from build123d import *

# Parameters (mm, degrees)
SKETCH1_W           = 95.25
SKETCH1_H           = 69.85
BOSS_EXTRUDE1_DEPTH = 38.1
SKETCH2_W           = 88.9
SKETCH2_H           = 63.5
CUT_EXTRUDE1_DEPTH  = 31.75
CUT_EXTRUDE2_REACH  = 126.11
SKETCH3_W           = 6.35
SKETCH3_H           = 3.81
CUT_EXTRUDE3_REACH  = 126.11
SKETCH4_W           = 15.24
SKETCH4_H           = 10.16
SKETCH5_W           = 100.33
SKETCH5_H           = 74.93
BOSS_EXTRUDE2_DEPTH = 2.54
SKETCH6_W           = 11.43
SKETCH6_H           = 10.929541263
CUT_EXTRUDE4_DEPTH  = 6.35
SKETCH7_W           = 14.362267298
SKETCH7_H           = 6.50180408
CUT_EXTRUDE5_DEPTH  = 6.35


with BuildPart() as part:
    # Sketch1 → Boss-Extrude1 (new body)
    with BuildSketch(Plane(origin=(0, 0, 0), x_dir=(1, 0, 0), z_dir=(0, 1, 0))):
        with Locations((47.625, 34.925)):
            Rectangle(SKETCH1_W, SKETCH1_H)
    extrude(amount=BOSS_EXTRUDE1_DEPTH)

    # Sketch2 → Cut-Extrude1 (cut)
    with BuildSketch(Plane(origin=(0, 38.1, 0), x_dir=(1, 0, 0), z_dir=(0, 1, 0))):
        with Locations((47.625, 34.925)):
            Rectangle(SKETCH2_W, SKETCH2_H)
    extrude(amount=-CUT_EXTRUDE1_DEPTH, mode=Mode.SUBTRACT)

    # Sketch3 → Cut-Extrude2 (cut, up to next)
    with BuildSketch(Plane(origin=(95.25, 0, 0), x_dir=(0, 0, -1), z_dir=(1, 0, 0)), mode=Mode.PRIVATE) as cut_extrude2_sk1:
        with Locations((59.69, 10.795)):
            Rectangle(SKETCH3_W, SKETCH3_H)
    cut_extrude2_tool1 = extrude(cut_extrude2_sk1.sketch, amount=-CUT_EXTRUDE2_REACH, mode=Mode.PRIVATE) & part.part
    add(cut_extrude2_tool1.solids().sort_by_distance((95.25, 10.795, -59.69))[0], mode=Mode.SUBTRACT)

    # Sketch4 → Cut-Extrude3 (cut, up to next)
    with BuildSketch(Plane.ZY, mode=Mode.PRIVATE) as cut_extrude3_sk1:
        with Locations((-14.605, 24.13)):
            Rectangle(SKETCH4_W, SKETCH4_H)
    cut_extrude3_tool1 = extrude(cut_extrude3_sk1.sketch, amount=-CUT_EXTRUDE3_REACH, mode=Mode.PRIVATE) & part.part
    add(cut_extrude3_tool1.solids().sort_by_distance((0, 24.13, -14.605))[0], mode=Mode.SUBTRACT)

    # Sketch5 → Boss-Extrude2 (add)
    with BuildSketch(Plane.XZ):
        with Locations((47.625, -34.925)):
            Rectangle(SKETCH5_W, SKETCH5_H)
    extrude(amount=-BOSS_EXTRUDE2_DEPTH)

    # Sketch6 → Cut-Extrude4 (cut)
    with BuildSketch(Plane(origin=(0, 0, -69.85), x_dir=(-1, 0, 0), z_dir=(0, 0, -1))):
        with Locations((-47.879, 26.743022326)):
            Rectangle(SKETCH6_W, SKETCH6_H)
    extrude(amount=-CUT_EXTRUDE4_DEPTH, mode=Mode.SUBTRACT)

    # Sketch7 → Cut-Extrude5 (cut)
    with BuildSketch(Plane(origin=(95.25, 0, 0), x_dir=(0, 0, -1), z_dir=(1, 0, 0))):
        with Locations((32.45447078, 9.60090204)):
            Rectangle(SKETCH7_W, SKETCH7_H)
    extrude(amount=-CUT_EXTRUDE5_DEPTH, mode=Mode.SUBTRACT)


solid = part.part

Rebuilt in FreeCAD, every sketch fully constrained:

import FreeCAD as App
import Part
import Sketcher
Q = App.Units.Quantity

doc = App.newDocument("Part")
body = doc.addObject("PartDesign::Body", "Body")

# Sketch on XZ plane
sketch1 = body.newObject("Sketcher::SketchObject", "Sketch")
sketch1.AttachmentSupport = (doc.getObject("XZ_Plane"), [""])
sketch1.MapMode = "FlatFace"
sketch1.addGeometry(Part.LineSegment(App.Vector(0, -70, 0), App.Vector(0, 0, 0)), False)
sketch1.addGeometry(Part.LineSegment(App.Vector(0, 0, 0), App.Vector(95, 0, 0)), False)
sketch1.addGeometry(Part.LineSegment(App.Vector(95, 0, 0), App.Vector(95, -70, 0)), False)
sketch1.addGeometry(Part.LineSegment(App.Vector(95, -70, 0), App.Vector(0, -70, 0)), False)
sketch1.addConstraint(Sketcher.Constraint("Coincident", 0, 2, 1, 1))
sketch1.addConstraint(Sketcher.Constraint("Coincident", 1, 2, 2, 1))
sketch1.addConstraint(Sketcher.Constraint("Coincident", 2, 2, 3, 1))
sketch1.addConstraint(Sketcher.Constraint("Coincident", 3, 2, 0, 1))
sketch1.addConstraint(Sketcher.Constraint("Vertical", 0))
sketch1.addConstraint(Sketcher.Constraint("Horizontal", 1))
sketch1.addConstraint(Sketcher.Constraint("Vertical", 2))
sketch1.addConstraint(Sketcher.Constraint("Horizontal", 3))
sketch1.addConstraint(Sketcher.Constraint("Coincident", 0, 2, -1, 1))
sketch1.addConstraint(Sketcher.Constraint("DistanceX", 1, 1, 1, 2, Q("3.75 in")))
sketch1.addConstraint(Sketcher.Constraint("DistanceY", 0, 1, 0, 2, Q("2.75 in")))
pad1 = body.newObject("PartDesign::Pad", "Pad")
pad1.Profile = sketch1
pad1.Length = Q("1.5 in")
pad1.Reversed = True

# Sketch on XZ plane
sketch2 = body.newObject("Sketcher::SketchObject", "Sketch001")
sketch2.AttachmentSupport = (doc.getObject("XZ_Plane"), [""])
sketch2.MapMode = "FlatFace"
sketch2.AttachmentOffset = App.Placement(App.Vector(0, 0, -1.5 * 25.4), App.Rotation())
sketch2.addGeometry(Part.LineSegment(App.Vector(3, -67, 0), App.Vector(3, -3, 0)), False)
sketch2.addGeometry(Part.LineSegment(App.Vector(3, -3, 0), App.Vector(92, -3, 0)), False)
sketch2.addGeometry(Part.LineSegment(App.Vector(92, -3, 0), App.Vector(92, -67, 0)), False)
sketch2.addGeometry(Part.LineSegment(App.Vector(92, -67, 0), App.Vector(3, -67, 0)), False)
sketch2.addConstraint(Sketcher.Constraint("Coincident", 0, 2, 1, 1))
sketch2.addConstraint(Sketcher.Constraint("Coincident", 1, 2, 2, 1))
sketch2.addConstraint(Sketcher.Constraint("Coincident", 2, 2, 3, 1))
sketch2.addConstraint(Sketcher.Constraint("Coincident", 3, 2, 0, 1))
sketch2.addConstraint(Sketcher.Constraint("Vertical", 0))
sketch2.addConstraint(Sketcher.Constraint("Horizontal", 1))
sketch2.addConstraint(Sketcher.Constraint("Vertical", 2))
sketch2.addConstraint(Sketcher.Constraint("Horizontal", 3))
sketch2.addConstraint(Sketcher.Constraint("DistanceX", 1, 1, 1, 2, Q("3.5 in")))
sketch2.addConstraint(Sketcher.Constraint("DistanceY", 0, 1, 0, 2, Q("2.5 in")))
sketch2.addConstraint(Sketcher.Constraint("DistanceX", -1, 1, 0, 2, Q("0.125 in")))
sketch2.addConstraint(Sketcher.Constraint("DistanceY", 0, 2, -1, 1, Q("0.125 in")))
pocket1 = body.newObject("PartDesign::Pocket", "Pocket")
pocket1.Profile = sketch2
pocket1.Length = Q("1.25 in")
pocket1.Reversed = True

# Sketch on YZ plane
sketch3 = body.newObject("Sketcher::SketchObject", "Sketch002")
sketch3.AttachmentSupport = (doc.getObject("YZ_Plane"), [""])
sketch3.MapMode = "FlatFace"
sketch3.AttachmentOffset = App.Placement(App.Vector(0, 0, 3.75 * 25.4), App.Rotation())
sketch3.addGeometry(Part.LineSegment(App.Vector(12.7, -56.5, 0), App.Vector(8.9, -56.5, 0)), False)
sketch3.addGeometry(Part.LineSegment(App.Vector(8.9, -56.5, 0), App.Vector(8.9, -62.9, 0)), False)
sketch3.addGeometry(Part.LineSegment(App.Vector(8.9, -62.9, 0), App.Vector(12.7, -62.9, 0)), False)
sketch3.addGeometry(Part.LineSegment(App.Vector(12.7, -62.9, 0), App.Vector(12.7, -56.5, 0)), False)
sketch3.addConstraint(Sketcher.Constraint("Coincident", 0, 2, 1, 1))
sketch3.addConstraint(Sketcher.Constraint("Coincident", 1, 2, 2, 1))
sketch3.addConstraint(Sketcher.Constraint("Coincident", 2, 2, 3, 1))
sketch3.addConstraint(Sketcher.Constraint("Coincident", 3, 2, 0, 1))
sketch3.addConstraint(Sketcher.Constraint("Horizontal", 0))
sketch3.addConstraint(Sketcher.Constraint("Vertical", 1))
sketch3.addConstraint(Sketcher.Constraint("Horizontal", 2))
sketch3.addConstraint(Sketcher.Constraint("Vertical", 3))
sketch3.addConstraint(Sketcher.Constraint("DistanceX", 0, 2, 0, 1, Q("0.15 in")))
sketch3.addConstraint(Sketcher.Constraint("DistanceY", 1, 2, 1, 1, Q("0.25 in")))
sketch3.addConstraint(Sketcher.Constraint("DistanceX", -1, 1, 2, 2, Q("0.5 in")))
sketch3.addConstraint(Sketcher.Constraint("DistanceY", 0, 2, -1, 1, Q("2.225 in")))
pocket2 = body.newObject("PartDesign::Pocket", "Pocket001")
pocket2.Profile = sketch3
pocket2.Type = "UpToFirst"

# Sketch on YZ plane
sketch4 = body.newObject("Sketcher::SketchObject", "Sketch003")
sketch4.AttachmentSupport = (doc.getObject("YZ_Plane"), [""])
sketch4.MapMode = "FlatFace"
sketch4.addGeometry(Part.LineSegment(App.Vector(29, -22, 0), App.Vector(19, -22, 0)), False)
sketch4.addGeometry(Part.LineSegment(App.Vector(19, -22, 0), App.Vector(19, -7, 0)), False)
sketch4.addGeometry(Part.LineSegment(App.Vector(19, -7, 0), App.Vector(29, -7, 0)), False)
sketch4.addGeometry(Part.LineSegment(App.Vector(29, -7, 0), App.Vector(29, -22, 0)), False)
sketch4.addConstraint(Sketcher.Constraint("Coincident", 0, 2, 1, 1))
sketch4.addConstraint(Sketcher.Constraint("Coincident", 1, 2, 2, 1))
sketch4.addConstraint(Sketcher.Constraint("Coincident", 2, 2, 3, 1))
sketch4.addConstraint(Sketcher.Constraint("Coincident", 3, 2, 0, 1))
sketch4.addConstraint(Sketcher.Constraint("Horizontal", 0))
sketch4.addConstraint(Sketcher.Constraint("Vertical", 1))
sketch4.addConstraint(Sketcher.Constraint("Horizontal", 2))
sketch4.addConstraint(Sketcher.Constraint("Vertical", 3))
sketch4.addConstraint(Sketcher.Constraint("DistanceX", 0, 2, 0, 1, Q("0.4 in")))
sketch4.addConstraint(Sketcher.Constraint("DistanceY", 1, 1, 1, 2, Q("0.6 in")))
sketch4.addConstraint(Sketcher.Constraint("DistanceX", -1, 1, 0, 2, Q("0.75 in")))
sketch4.addConstraint(Sketcher.Constraint("DistanceY", 0, 2, -1, 1, Q("0.875 in")))
pocket3 = body.newObject("PartDesign::Pocket", "Pocket002")
pocket3.Profile = sketch4
pocket3.Type = "UpToFirst"
pocket3.Reversed = True

# Sketch on XZ plane
sketch5 = body.newObject("Sketcher::SketchObject", "Sketch004")
sketch5.AttachmentSupport = (doc.getObject("XZ_Plane"), [""])
sketch5.MapMode = "FlatFace"
sketch5.addGeometry(Part.LineSegment(App.Vector(-3, 3, 0), App.Vector(-3, -72, 0)), False)
sketch5.addGeometry(Part.LineSegment(App.Vector(-3, -72, 0), App.Vector(98, -72, 0)), False)
sketch5.addGeometry(Part.LineSegment(App.Vector(98, -72, 0), App.Vector(98, 3, 0)), False)
sketch5.addGeometry(Part.LineSegment(App.Vector(98, 3, 0), App.Vector(-3, 3, 0)), False)
sketch5.addConstraint(Sketcher.Constraint("Coincident", 0, 2, 1, 1))
sketch5.addConstraint(Sketcher.Constraint("Coincident", 1, 2, 2, 1))
sketch5.addConstraint(Sketcher.Constraint("Coincident", 2, 2, 3, 1))
sketch5.addConstraint(Sketcher.Constraint("Coincident", 3, 2, 0, 1))
sketch5.addConstraint(Sketcher.Constraint("Vertical", 0))
sketch5.addConstraint(Sketcher.Constraint("Horizontal", 1))
sketch5.addConstraint(Sketcher.Constraint("Vertical", 2))
sketch5.addConstraint(Sketcher.Constraint("Horizontal", 3))
sketch5.addConstraint(Sketcher.Constraint("DistanceX", 1, 1, 1, 2, Q("3.95 in")))
sketch5.addConstraint(Sketcher.Constraint("DistanceY", 0, 2, 0, 1, Q("2.95 in")))
sketch5.addConstraint(Sketcher.Constraint("DistanceX", 0, 2, -1, 1, Q("0.1 in")))
sketch5.addConstraint(Sketcher.Constraint("DistanceY", -1, 1, 2, 2, Q("0.1 in")))
pad2 = body.newObject("PartDesign::Pad", "Pad001")
pad2.Profile = sketch5
pad2.Length = Q("0.1 in")
pad2.Reversed = True

# Sketch on XY plane
sketch6 = body.newObject("Sketcher::SketchObject", "Sketch005")
sketch6.AttachmentSupport = (doc.getObject("XY_Plane"), [""])
sketch6.MapMode = "FlatFace"
sketch6.AttachmentOffset = App.Placement(App.Vector(0, 0, -2.75 * 25.4), App.Rotation())
sketch6.addGeometry(Part.LineSegment(App.Vector(54, 32, 0), App.Vector(54, 21, 0)), False)
sketch6.addGeometry(Part.LineSegment(App.Vector(54, 21, 0), App.Vector(42, 21, 0)), False)
sketch6.addGeometry(Part.LineSegment(App.Vector(42, 21, 0), App.Vector(42, 32, 0)), False)
sketch6.addGeometry(Part.LineSegment(App.Vector(42, 32, 0), App.Vector(54, 32, 0)), False)
sketch6.addConstraint(Sketcher.Constraint("Coincident", 0, 2, 1, 1))
sketch6.addConstraint(Sketcher.Constraint("Coincident", 1, 2, 2, 1))
sketch6.addConstraint(Sketcher.Constraint("Coincident", 2, 2, 3, 1))
sketch6.addConstraint(Sketcher.Constraint("Coincident", 3, 2, 0, 1))
sketch6.addConstraint(Sketcher.Constraint("Vertical", 0))
sketch6.addConstraint(Sketcher.Constraint("Horizontal", 1))
sketch6.addConstraint(Sketcher.Constraint("Vertical", 2))
sketch6.addConstraint(Sketcher.Constraint("Horizontal", 3))
sketch6.addConstraint(Sketcher.Constraint("DistanceX", 1, 2, 1, 1, Q("0.45 in")))
sketch6.addConstraint(Sketcher.Constraint("DistanceX", -1, 1, 0, 2, Q("2.11 in")))
sketch6.addConstraint(Sketcher.Constraint("DistanceY", 0, 2, 0, 1, Q("10.929541 mm")))
sketch6.addConstraint(Sketcher.Constraint("DistanceY", -1, 1, 0, 2, Q("21.278252 mm")))
pocket4 = body.newObject("PartDesign::Pocket", "Pocket003")
pocket4.Profile = sketch6
pocket4.Length = Q("0.25 in")
pocket4.Reversed = True

# Sketch on YZ plane
sketch7 = body.newObject("Sketcher::SketchObject", "Sketch006")
sketch7.AttachmentSupport = (doc.getObject("YZ_Plane"), [""])
sketch7.MapMode = "FlatFace"
sketch7.AttachmentOffset = App.Placement(App.Vector(0, 0, 3.75 * 25.4), App.Rotation())
sketch7.addGeometry(Part.LineSegment(App.Vector(13, -25, 0), App.Vector(6, -25, 0)), False)
sketch7.addGeometry(Part.LineSegment(App.Vector(6, -25, 0), App.Vector(6, -40, 0)), False)
sketch7.addGeometry(Part.LineSegment(App.Vector(6, -40, 0), App.Vector(13, -40, 0)), False)
sketch7.addGeometry(Part.LineSegment(App.Vector(13, -40, 0), App.Vector(13, -25, 0)), False)
sketch7.addConstraint(Sketcher.Constraint("Coincident", 0, 2, 1, 1))
sketch7.addConstraint(Sketcher.Constraint("Coincident", 1, 2, 2, 1))
sketch7.addConstraint(Sketcher.Constraint("Coincident", 2, 2, 3, 1))
sketch7.addConstraint(Sketcher.Constraint("Coincident", 3, 2, 0, 1))
sketch7.addConstraint(Sketcher.Constraint("Horizontal", 0))
sketch7.addConstraint(Sketcher.Constraint("Vertical", 1))
sketch7.addConstraint(Sketcher.Constraint("Horizontal", 2))
sketch7.addConstraint(Sketcher.Constraint("Vertical", 3))
sketch7.addConstraint(Sketcher.Constraint("DistanceX", -1, 1, 0, 2, Q("0.25 in")))
sketch7.addConstraint(Sketcher.Constraint("DistanceX", 0, 2, 0, 1, Q("6.501804 mm")))
sketch7.addConstraint(Sketcher.Constraint("DistanceY", 1, 2, 1, 1, Q("14.362267 mm")))
sketch7.addConstraint(Sketcher.Constraint("DistanceY", 0, 2, -1, 1, Q("25.273337 mm")))
pocket5 = body.newObject("PartDesign::Pocket", "Pocket004")
pocket5.Profile = sketch7
pocket5.Length = Q("0.25 in")

doc.recompute()
